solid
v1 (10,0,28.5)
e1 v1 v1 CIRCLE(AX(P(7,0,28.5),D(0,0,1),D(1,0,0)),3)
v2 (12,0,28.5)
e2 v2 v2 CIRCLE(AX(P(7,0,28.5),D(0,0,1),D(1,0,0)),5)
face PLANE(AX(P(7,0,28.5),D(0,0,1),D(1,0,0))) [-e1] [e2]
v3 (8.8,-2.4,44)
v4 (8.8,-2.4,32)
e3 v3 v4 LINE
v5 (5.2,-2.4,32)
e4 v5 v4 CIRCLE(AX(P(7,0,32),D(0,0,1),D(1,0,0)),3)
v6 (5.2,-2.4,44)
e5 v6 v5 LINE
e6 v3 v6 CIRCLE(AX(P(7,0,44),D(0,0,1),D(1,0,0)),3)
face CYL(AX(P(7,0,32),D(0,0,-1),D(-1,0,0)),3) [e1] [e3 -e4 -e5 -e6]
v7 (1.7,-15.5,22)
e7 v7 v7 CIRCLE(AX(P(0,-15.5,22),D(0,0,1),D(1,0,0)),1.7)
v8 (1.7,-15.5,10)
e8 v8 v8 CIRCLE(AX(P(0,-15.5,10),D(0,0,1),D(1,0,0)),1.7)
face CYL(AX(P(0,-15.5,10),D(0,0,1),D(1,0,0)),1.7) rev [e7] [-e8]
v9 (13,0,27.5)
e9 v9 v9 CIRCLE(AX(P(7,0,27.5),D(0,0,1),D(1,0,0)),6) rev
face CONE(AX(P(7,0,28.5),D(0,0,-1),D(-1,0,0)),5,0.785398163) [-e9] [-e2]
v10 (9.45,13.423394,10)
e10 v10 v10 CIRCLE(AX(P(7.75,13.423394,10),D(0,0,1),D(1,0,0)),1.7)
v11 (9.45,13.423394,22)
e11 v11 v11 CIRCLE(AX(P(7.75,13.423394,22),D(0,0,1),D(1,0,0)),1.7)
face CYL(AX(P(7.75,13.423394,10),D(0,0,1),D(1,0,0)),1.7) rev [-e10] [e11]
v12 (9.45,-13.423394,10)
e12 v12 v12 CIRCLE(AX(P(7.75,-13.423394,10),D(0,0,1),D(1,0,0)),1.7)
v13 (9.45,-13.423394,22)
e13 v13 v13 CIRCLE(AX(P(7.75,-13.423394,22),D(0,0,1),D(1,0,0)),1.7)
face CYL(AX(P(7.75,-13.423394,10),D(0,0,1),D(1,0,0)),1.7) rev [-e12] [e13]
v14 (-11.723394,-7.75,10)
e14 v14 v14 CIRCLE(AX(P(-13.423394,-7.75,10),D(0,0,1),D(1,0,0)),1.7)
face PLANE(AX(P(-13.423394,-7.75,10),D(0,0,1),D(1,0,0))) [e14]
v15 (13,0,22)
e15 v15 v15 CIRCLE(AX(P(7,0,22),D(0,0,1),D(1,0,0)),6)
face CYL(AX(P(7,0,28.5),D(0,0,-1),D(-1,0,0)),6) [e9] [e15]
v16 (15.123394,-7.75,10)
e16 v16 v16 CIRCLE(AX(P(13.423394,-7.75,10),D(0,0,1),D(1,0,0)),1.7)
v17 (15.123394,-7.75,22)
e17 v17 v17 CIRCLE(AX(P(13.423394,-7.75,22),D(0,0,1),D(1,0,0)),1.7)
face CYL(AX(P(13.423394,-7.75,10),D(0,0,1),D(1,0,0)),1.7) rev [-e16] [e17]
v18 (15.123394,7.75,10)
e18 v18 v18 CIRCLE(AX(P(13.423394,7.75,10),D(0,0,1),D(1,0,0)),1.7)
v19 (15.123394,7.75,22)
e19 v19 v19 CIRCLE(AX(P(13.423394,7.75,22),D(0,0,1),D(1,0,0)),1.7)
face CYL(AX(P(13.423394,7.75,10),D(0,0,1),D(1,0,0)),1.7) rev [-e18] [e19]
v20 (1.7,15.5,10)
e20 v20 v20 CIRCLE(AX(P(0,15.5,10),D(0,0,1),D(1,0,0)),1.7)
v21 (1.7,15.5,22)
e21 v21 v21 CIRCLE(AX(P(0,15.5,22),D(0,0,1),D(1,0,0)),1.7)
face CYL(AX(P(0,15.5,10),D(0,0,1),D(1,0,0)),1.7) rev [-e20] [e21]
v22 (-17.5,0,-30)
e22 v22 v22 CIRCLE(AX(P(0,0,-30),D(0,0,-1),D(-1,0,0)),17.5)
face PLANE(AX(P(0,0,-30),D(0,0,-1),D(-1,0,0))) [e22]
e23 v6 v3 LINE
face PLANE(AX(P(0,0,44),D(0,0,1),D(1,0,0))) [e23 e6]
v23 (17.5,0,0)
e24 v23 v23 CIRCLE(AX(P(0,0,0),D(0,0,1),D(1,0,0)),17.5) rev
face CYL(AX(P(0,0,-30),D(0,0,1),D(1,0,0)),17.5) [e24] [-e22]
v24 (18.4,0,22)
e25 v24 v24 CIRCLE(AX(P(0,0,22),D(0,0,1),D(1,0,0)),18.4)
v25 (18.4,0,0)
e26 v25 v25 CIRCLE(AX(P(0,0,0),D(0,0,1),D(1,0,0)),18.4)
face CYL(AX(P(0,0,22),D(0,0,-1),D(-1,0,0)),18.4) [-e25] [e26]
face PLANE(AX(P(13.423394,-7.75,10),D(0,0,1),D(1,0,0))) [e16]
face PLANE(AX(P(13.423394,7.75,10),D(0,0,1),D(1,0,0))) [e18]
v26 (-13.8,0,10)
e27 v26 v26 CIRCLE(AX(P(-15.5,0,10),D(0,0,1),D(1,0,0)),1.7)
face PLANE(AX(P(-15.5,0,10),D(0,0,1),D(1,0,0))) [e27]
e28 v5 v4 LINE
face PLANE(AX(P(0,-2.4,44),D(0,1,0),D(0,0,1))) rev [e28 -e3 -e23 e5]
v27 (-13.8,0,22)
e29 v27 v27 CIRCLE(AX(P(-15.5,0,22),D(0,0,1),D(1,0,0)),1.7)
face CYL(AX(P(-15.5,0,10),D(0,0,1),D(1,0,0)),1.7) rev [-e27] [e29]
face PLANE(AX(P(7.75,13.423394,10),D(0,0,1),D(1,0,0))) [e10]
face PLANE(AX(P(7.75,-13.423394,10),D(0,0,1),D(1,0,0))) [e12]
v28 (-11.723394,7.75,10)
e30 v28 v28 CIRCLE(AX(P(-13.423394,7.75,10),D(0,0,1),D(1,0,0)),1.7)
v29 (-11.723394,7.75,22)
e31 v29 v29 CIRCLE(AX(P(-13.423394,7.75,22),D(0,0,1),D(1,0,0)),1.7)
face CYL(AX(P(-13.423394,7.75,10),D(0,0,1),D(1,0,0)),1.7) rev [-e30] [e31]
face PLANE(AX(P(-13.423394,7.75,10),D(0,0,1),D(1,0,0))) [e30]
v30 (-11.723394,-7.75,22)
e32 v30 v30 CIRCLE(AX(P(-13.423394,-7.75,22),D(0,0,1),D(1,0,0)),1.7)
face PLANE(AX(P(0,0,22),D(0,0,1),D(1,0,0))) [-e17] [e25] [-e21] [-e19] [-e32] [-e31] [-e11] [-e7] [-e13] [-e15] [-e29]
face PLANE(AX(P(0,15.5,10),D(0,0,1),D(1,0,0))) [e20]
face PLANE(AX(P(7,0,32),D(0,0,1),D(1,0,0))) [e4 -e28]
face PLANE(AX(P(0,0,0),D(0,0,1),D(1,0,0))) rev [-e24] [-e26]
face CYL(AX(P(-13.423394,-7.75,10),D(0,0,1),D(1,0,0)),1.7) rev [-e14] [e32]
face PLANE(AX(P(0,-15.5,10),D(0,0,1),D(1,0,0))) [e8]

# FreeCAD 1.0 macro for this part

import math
import FreeCAD as App
import Part
import Sketcher


def edges_at(feature, points):
    """Names of the edges that pass closest to the given points."""
    edges = feature.Shape.Edges
    near = lambda p: min(range(len(edges)), key=lambda i: edges[i].distToShape(Part.Vertex(*p))[0])
    return sorted({f"Edge{near(p) + 1}" for p in points})

doc = App.newDocument("Part")
params = doc.addObject("Spreadsheet::Sheet", "Params")
for row, (alias, value) in enumerate([
    ("sketch1_diameter", "36.8 mm"),
    ("pad1_length", "22 mm"),
    ("sketch2_diameter", "35 mm"),
    ("pad2_length", "30 mm"),
    ("sketch3_diameter", "12 mm"),
    ("pad3_length", "6.5 mm"),
    ("chamfer_size", "1 mm"),
    ("sketch4_diameter", "6 mm"),
    ("pad4_length", "3.5 mm"),
    ("sketch5_radius", "3 mm"),
    ("sketch5_width", "3.6 mm"),
    ("pad5_length", "12 mm"),
    ("sketch6_diameter", "3.4 mm"),
    ("pocket1_length", "12 mm"),
], start=1):
    params.set(f"A{row}", alias)
    params.set(f"B{row}", "=" + value)
    params.setAlias(f"B{row}", alias)

body = doc.addObject("PartDesign::Body", "Body")

# Sketch on XY plane
sketch1 = body.newObject("Sketcher::SketchObject", "Sketch")
sketch1.AttachmentSupport = (doc.getObject("XY_Plane"), [""])
sketch1.MapMode = "FlatFace"
sketch1.addGeometry(Part.Circle(App.Vector(0, 0, 0), App.Vector(0, 0, 1), 18), False)
sketch1.addConstraint(Sketcher.Constraint("Coincident", 0, 3, -1, 1))
sketch1.addConstraint(Sketcher.Constraint("Diameter", 0, 36.8))
sketch1.setExpression("Constraints[1]", "Params.sketch1_diameter")
pad1 = body.newObject("PartDesign::Pad", "Pad")
pad1.Profile = sketch1
pad1.setExpression("Length", "Params.pad1_length")

# Sketch on XY plane
sketch2 = body.newObject("Sketcher::SketchObject", "Sketch001")
sketch2.AttachmentSupport = (doc.getObject("XY_Plane"), [""])
sketch2.MapMode = "FlatFace"
sketch2.addGeometry(Part.Circle(App.Vector(0, 0, 0), App.Vector(0, 0, 1), 18), False)
sketch2.addConstraint(Sketcher.Constraint("Coincident", 0, 3, -1, 1))
sketch2.addConstraint(Sketcher.Constraint("Diameter", 0, 35.0))
sketch2.setExpression("Constraints[1]", "Params.sketch2_diameter")
pad2 = body.newObject("PartDesign::Pad", "Pad001")
pad2.Profile = sketch2
pad2.setExpression("Length", "Params.pad2_length")
pad2.Reversed = True

# Sketch on XY plane
sketch3 = body.newObject("Sketcher::SketchObject", "Sketch002")
sketch3.AttachmentSupport = (doc.getObject("XY_Plane"), [""])
sketch3.MapMode = "FlatFace"
sketch3.AttachmentOffset = App.Placement(App.Vector(0, 0, 22), App.Rotation())
sketch3.addGeometry(Part.Circle(App.Vector(7, 0, 0), App.Vector(0, 0, 1), 6), False)
sketch3.addConstraint(Sketcher.Constraint("PointOnObject", 0, 3, -1))
sketch3.addConstraint(Sketcher.Constraint("Diameter", 0, 12.0))
sketch3.addConstraint(Sketcher.Constraint("DistanceX", -1, 1, 0, 3, 7.0))
sketch3.setExpression("Constraints[1]", "Params.sketch3_diameter")
pad3 = body.newObject("PartDesign::Pad", "Pad002")
pad3.Profile = sketch3
pad3.setExpression("Length", "Params.pad3_length")
doc.recompute()

chamfer = body.newObject("PartDesign::Chamfer", "Chamfer")
chamfer.Base = (pad3, edges_at(pad3, [(1, 0, 28.5)]))
chamfer.setExpression("Size", "Params.chamfer_size")

# Sketch on XY plane
sketch4 = body.newObject("Sketcher::SketchObject", "Sketch003")
sketch4.AttachmentSupport = (doc.getObject("XY_Plane"), [""])
sketch4.MapMode = "FlatFace"
sketch4.AttachmentOffset = App.Placement(App.Vector(0, 0, 28.5), App.Rotation())
sketch4.addGeometry(Part.Circle(App.Vector(7, 0, 0), App.Vector(0, 0, 1), 3), False)
sketch4.addConstraint(Sketcher.Constraint("PointOnObject", 0, 3, -1))
sketch4.addConstraint(Sketcher.Constraint("Diameter", 0, 6.0))
sketch4.addConstraint(Sketcher.Constraint("DistanceX", -1, 1, 0, 3, 7.0))
sketch4.setExpression("Constraints[1]", "Params.sketch4_diameter")
pad4 = body.newObject("PartDesign::Pad", "Pad003")
pad4.Profile = sketch4
pad4.setExpression("Length", "Params.pad4_length")

# Sketch on XY plane
sketch5 = body.newObject("Sketcher::SketchObject", "Sketch004")
sketch5.AttachmentSupport = (doc.getObject("XY_Plane"), [""])
sketch5.MapMode = "FlatFace"
sketch5.AttachmentOffset = App.Placement(App.Vector(0, 0, 32), App.Rotation())
sketch5.addGeometry(Part.ArcOfCircle(Part.Circle(App.Vector(7, 0, 0), App.Vector(0, 0, 1), 3), math.radians(0), math.radians(233)), False)
sketch5.addGeometry(Part.LineSegment(App.Vector(5.2, -2.4, 0), App.Vector(8.8, -2.4, 0)), False)
sketch5.addGeometry(Part.ArcOfCircle(Part.Circle(App.Vector(7, 0, 0), App.Vector(0, 0, 1), 3), math.radians(-53), math.radians(0)), False)
sketch5.addConstraint(Sketcher.Constraint("Coincident", 0, 2, 1, 1))
sketch5.addConstraint(Sketcher.Constraint("Coincident", 1, 2, 2, 1))
sketch5.addConstraint(Sketcher.Constraint("Tangent", 2, 2, 0, 1))
sketch5.addConstraint(Sketcher.Constraint("Horizontal", 1))
sketch5.addConstraint(Sketcher.Constraint("Equal", 0, 2))
sketch5.addConstraint(Sketcher.Constraint("PointOnObject", 0, 3, -1))
sketch5.addConstraint(Sketcher.Constraint("PointOnObject", 2, 2, -1))
sketch5.addConstraint(Sketcher.Constraint("Radius", 0, 3.0))
sketch5.addConstraint(Sketcher.Constraint("DistanceX", 1, 1, 1, 2, 3.6))
sketch5.addConstraint(Sketcher.Constraint("DistanceX", -1, 1, 0, 3, 7.0))
sketch5.setExpression("Constraints[7]", "Params.sketch5_radius")
sketch5.setExpression("Constraints[8]", "Params.sketch5_width")
pad5 = body.newObject("PartDesign::Pad", "Pad004")
pad5.Profile = sketch5
pad5.setExpression("Length", "Params.pad5_length")

# Sketch on XY plane
sketch6 = body.newObject("Sketcher::SketchObject", "Sketch005")
sketch6.AttachmentSupport = (doc.getObject("XY_Plane"), [""])
sketch6.MapMode = "FlatFace"
sketch6.AttachmentOffset = App.Placement(App.Vector(0, 0, 22), App.Rotation())
sketch6.addGeometry(Part.Circle(App.Vector(0, 15.5, 0), App.Vector(0, 0, 1), 1.7), False)
sketch6.addGeometry(Part.Circle(App.Vector(13.4, 7.8, 0), App.Vector(0, 0, 1), 1.7), False)
sketch6.addGeometry(Part.Circle(App.Vector(13.4, -7.8, 0), App.Vector(0, 0, 1), 1.7), False)
sketch6.addGeometry(Part.Circle(App.Vector(0, -15.5, 0), App.Vector(0, 0, 1), 1.7), False)
sketch6.addGeometry(Part.Circle(App.Vector(-13.4, -7.8, 0), App.Vector(0, 0, 1), 1.7), False)
sketch6.addGeometry(Part.Circle(App.Vector(-13.4, 7.8, 0), App.Vector(0, 0, 1), 1.7), False)
sketch6.addGeometry(Part.Circle(App.Vector(-15.5, 0, 0), App.Vector(0, 0, 1), 1.7), False)
sketch6.addGeometry(Part.Circle(App.Vector(7.8, 13.4, 0), App.Vector(0, 0, 1), 1.7), False)
sketch6.addGeometry(Part.Circle(App.Vector(7.8, -13.4, 0), App.Vector(0, 0, 1), 1.7), False)
sketch6.addConstraint(Sketcher.Constraint("Equal", 0, 1))
sketch6.addConstraint(Sketcher.Constraint("Equal", 1, 2))
sketch6.addConstraint(Sketcher.Constraint("Equal", 2, 3))
sketch6.addConstraint(Sketcher.Constraint("Equal", 3, 4))
sketch6.addConstraint(Sketcher.Constraint("Equal", 4, 5))
sketch6.addConstraint(Sketcher.Constraint("Equal", 5, 6))
sketch6.addConstraint(Sketcher.Constraint("Equal", 6, 7))
sketch6.addConstraint(Sketcher.Constraint("Equal", 7, 8))
sketch6.addConstraint(Sketcher.Constraint("Symmetric", 0, 3, 3, 3, -1, 1))
sketch6.addConstraint(Sketcher.Constraint("Symmetric", 1, 3, 4, 3, -1, 1))
sketch6.addConstraint(Sketcher.Constraint("Symmetric", 2, 3, 5, 3, -1, 1))
sketch6.addConstraint(Sketcher.Constraint("Symmetric", 2, 3, 4, 3, -2))
sketch6.addConstraint(Sketcher.Constraint("Symmetric", 7, 3, 8, 3, -1))
sketch6.addConstraint(Sketcher.Constraint("PointOnObject", 0, 3, -2))
sketch6.addConstraint(Sketcher.Constraint("PointOnObject", 6, 3, -1))
sketch6.addConstraint(Sketcher.Constraint("Diameter", 0, 3.4))
sketch6.addConstraint(Sketcher.Constraint("DistanceY", 3, 3, 0, 3, 31.0))
sketch6.addConstraint(Sketcher.Constraint("DistanceX", 6, 3, -1, 1, 15.5))
sketch6.addConstraint(Sketcher.Constraint("DistanceY", 2, 3, 1, 3, 15.5))
sketch6.addConstraint(Sketcher.Constraint("DistanceX", -1, 1, 7, 3, 7.75))
sketch6.addConstraint(Sketcher.Constraint("DistanceX", -1, 1, 1, 3, 13.423394))
sketch6.addConstraint(Sketcher.Constraint("DistanceY", -1, 1, 7, 3, 13.423394))
sketch6.setExpression("Constraints[15]", "Params.sketch6_diameter")
pocket1 = body.newObject("PartDesign::Pocket", "Pocket")
pocket1.Profile = sketch6
pocket1.setExpression("Length", "Params.pocket1_length")

doc.recompute()
